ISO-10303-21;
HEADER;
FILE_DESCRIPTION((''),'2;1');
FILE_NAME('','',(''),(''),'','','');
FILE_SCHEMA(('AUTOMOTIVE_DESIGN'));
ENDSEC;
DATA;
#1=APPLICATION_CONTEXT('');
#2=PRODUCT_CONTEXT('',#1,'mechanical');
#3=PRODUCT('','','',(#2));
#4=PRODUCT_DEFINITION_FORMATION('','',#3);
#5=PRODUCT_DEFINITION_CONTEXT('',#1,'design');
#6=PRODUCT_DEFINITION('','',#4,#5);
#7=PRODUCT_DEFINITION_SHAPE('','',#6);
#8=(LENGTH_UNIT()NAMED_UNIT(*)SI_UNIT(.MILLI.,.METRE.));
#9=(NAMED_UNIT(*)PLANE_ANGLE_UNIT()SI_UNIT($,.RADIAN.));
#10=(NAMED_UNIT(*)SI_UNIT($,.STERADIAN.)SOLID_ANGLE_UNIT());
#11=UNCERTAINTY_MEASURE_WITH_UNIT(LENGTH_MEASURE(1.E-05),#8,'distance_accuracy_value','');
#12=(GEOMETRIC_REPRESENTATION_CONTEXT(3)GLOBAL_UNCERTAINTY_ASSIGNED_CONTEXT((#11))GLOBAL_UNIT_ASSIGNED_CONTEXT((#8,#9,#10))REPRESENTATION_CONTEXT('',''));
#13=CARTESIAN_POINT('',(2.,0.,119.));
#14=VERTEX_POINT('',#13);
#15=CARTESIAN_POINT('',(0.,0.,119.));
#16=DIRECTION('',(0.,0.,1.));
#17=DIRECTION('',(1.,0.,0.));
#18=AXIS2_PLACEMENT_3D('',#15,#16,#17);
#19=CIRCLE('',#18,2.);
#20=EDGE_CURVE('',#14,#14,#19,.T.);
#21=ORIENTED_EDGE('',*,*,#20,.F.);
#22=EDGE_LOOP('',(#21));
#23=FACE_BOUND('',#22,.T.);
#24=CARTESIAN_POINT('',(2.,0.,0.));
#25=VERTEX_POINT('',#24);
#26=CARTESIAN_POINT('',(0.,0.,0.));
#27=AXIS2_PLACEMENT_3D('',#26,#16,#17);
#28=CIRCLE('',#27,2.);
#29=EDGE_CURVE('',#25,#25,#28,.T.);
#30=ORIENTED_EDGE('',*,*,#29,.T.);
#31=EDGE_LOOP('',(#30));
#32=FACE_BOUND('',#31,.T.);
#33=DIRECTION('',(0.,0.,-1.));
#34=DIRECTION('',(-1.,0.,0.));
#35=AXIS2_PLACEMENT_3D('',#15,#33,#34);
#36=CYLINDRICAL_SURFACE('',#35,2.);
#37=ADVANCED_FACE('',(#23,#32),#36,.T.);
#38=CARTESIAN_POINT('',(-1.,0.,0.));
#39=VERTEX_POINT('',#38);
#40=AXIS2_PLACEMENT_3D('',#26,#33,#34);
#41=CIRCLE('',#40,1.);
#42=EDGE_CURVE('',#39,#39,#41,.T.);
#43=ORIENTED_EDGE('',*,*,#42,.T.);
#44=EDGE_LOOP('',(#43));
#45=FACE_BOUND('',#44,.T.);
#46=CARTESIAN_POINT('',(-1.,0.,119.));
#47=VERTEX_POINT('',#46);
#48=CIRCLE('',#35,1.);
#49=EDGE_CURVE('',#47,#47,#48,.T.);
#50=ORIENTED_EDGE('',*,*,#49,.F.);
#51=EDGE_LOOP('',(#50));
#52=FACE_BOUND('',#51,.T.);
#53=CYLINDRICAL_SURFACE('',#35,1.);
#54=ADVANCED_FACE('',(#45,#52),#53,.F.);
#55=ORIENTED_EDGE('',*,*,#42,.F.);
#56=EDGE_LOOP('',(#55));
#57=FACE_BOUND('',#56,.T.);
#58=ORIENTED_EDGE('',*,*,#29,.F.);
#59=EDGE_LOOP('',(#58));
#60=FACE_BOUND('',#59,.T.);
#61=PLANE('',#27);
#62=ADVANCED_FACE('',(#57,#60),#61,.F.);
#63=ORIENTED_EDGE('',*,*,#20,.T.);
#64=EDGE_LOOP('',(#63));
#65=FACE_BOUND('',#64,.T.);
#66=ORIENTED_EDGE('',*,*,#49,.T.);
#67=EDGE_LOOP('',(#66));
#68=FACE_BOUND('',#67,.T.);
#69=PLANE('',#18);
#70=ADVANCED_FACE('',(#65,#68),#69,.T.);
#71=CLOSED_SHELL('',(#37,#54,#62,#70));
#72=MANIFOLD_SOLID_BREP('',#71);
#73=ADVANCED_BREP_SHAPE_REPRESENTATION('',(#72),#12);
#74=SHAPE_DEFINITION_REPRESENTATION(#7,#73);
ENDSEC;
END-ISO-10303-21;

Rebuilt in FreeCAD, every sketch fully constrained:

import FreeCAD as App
import Part
import Sketcher
from FreeCAD import Vector

doc = App.newDocument("Part")
body = doc.addObject("PartDesign::Body", "Body")

sketch1 = body.newObject("Sketcher::SketchObject", "Sketch")
sketch1.AttachmentSupport = (doc.getObject("XY_Plane"), [""])
sketch1.MapMode = "FlatFace"
sketch1.addGeometry(Part.Circle(Vector(0, 0, 0), Vector(0, 0, 1), 2), False)
sketch1.addConstraint(Sketcher.Constraint("Coincident", 0, 3, -1, 1))
sketch1.addConstraint(Sketcher.Constraint("Diameter", 0, 4.0))
pad1 = body.newObject("PartDesign::Pad", "Pad")
pad1.Profile = sketch1
pad1.Length = 119

sketch2 = body.newObject("Sketcher::SketchObject", "Sketch001")
sketch2.AttachmentSupport = (doc.getObject("XY_Plane"), [""])
sketch2.MapMode = "FlatFace"
sketch2.addGeometry(Part.Circle(Vector(0, 0, 0), Vector(0, 0, 1), 1), False)
sketch2.addConstraint(Sketcher.Constraint("Coincident", 0, 3, -1, 1))
sketch2.addConstraint(Sketcher.Constraint("Diameter", 0, 2.0))
pocket1 = body.newObject("PartDesign::Pocket", "Pocket")
pocket1.Profile = sketch2
pocket1.Length = 119
pocket1.Reversed = True

doc.recompute()
